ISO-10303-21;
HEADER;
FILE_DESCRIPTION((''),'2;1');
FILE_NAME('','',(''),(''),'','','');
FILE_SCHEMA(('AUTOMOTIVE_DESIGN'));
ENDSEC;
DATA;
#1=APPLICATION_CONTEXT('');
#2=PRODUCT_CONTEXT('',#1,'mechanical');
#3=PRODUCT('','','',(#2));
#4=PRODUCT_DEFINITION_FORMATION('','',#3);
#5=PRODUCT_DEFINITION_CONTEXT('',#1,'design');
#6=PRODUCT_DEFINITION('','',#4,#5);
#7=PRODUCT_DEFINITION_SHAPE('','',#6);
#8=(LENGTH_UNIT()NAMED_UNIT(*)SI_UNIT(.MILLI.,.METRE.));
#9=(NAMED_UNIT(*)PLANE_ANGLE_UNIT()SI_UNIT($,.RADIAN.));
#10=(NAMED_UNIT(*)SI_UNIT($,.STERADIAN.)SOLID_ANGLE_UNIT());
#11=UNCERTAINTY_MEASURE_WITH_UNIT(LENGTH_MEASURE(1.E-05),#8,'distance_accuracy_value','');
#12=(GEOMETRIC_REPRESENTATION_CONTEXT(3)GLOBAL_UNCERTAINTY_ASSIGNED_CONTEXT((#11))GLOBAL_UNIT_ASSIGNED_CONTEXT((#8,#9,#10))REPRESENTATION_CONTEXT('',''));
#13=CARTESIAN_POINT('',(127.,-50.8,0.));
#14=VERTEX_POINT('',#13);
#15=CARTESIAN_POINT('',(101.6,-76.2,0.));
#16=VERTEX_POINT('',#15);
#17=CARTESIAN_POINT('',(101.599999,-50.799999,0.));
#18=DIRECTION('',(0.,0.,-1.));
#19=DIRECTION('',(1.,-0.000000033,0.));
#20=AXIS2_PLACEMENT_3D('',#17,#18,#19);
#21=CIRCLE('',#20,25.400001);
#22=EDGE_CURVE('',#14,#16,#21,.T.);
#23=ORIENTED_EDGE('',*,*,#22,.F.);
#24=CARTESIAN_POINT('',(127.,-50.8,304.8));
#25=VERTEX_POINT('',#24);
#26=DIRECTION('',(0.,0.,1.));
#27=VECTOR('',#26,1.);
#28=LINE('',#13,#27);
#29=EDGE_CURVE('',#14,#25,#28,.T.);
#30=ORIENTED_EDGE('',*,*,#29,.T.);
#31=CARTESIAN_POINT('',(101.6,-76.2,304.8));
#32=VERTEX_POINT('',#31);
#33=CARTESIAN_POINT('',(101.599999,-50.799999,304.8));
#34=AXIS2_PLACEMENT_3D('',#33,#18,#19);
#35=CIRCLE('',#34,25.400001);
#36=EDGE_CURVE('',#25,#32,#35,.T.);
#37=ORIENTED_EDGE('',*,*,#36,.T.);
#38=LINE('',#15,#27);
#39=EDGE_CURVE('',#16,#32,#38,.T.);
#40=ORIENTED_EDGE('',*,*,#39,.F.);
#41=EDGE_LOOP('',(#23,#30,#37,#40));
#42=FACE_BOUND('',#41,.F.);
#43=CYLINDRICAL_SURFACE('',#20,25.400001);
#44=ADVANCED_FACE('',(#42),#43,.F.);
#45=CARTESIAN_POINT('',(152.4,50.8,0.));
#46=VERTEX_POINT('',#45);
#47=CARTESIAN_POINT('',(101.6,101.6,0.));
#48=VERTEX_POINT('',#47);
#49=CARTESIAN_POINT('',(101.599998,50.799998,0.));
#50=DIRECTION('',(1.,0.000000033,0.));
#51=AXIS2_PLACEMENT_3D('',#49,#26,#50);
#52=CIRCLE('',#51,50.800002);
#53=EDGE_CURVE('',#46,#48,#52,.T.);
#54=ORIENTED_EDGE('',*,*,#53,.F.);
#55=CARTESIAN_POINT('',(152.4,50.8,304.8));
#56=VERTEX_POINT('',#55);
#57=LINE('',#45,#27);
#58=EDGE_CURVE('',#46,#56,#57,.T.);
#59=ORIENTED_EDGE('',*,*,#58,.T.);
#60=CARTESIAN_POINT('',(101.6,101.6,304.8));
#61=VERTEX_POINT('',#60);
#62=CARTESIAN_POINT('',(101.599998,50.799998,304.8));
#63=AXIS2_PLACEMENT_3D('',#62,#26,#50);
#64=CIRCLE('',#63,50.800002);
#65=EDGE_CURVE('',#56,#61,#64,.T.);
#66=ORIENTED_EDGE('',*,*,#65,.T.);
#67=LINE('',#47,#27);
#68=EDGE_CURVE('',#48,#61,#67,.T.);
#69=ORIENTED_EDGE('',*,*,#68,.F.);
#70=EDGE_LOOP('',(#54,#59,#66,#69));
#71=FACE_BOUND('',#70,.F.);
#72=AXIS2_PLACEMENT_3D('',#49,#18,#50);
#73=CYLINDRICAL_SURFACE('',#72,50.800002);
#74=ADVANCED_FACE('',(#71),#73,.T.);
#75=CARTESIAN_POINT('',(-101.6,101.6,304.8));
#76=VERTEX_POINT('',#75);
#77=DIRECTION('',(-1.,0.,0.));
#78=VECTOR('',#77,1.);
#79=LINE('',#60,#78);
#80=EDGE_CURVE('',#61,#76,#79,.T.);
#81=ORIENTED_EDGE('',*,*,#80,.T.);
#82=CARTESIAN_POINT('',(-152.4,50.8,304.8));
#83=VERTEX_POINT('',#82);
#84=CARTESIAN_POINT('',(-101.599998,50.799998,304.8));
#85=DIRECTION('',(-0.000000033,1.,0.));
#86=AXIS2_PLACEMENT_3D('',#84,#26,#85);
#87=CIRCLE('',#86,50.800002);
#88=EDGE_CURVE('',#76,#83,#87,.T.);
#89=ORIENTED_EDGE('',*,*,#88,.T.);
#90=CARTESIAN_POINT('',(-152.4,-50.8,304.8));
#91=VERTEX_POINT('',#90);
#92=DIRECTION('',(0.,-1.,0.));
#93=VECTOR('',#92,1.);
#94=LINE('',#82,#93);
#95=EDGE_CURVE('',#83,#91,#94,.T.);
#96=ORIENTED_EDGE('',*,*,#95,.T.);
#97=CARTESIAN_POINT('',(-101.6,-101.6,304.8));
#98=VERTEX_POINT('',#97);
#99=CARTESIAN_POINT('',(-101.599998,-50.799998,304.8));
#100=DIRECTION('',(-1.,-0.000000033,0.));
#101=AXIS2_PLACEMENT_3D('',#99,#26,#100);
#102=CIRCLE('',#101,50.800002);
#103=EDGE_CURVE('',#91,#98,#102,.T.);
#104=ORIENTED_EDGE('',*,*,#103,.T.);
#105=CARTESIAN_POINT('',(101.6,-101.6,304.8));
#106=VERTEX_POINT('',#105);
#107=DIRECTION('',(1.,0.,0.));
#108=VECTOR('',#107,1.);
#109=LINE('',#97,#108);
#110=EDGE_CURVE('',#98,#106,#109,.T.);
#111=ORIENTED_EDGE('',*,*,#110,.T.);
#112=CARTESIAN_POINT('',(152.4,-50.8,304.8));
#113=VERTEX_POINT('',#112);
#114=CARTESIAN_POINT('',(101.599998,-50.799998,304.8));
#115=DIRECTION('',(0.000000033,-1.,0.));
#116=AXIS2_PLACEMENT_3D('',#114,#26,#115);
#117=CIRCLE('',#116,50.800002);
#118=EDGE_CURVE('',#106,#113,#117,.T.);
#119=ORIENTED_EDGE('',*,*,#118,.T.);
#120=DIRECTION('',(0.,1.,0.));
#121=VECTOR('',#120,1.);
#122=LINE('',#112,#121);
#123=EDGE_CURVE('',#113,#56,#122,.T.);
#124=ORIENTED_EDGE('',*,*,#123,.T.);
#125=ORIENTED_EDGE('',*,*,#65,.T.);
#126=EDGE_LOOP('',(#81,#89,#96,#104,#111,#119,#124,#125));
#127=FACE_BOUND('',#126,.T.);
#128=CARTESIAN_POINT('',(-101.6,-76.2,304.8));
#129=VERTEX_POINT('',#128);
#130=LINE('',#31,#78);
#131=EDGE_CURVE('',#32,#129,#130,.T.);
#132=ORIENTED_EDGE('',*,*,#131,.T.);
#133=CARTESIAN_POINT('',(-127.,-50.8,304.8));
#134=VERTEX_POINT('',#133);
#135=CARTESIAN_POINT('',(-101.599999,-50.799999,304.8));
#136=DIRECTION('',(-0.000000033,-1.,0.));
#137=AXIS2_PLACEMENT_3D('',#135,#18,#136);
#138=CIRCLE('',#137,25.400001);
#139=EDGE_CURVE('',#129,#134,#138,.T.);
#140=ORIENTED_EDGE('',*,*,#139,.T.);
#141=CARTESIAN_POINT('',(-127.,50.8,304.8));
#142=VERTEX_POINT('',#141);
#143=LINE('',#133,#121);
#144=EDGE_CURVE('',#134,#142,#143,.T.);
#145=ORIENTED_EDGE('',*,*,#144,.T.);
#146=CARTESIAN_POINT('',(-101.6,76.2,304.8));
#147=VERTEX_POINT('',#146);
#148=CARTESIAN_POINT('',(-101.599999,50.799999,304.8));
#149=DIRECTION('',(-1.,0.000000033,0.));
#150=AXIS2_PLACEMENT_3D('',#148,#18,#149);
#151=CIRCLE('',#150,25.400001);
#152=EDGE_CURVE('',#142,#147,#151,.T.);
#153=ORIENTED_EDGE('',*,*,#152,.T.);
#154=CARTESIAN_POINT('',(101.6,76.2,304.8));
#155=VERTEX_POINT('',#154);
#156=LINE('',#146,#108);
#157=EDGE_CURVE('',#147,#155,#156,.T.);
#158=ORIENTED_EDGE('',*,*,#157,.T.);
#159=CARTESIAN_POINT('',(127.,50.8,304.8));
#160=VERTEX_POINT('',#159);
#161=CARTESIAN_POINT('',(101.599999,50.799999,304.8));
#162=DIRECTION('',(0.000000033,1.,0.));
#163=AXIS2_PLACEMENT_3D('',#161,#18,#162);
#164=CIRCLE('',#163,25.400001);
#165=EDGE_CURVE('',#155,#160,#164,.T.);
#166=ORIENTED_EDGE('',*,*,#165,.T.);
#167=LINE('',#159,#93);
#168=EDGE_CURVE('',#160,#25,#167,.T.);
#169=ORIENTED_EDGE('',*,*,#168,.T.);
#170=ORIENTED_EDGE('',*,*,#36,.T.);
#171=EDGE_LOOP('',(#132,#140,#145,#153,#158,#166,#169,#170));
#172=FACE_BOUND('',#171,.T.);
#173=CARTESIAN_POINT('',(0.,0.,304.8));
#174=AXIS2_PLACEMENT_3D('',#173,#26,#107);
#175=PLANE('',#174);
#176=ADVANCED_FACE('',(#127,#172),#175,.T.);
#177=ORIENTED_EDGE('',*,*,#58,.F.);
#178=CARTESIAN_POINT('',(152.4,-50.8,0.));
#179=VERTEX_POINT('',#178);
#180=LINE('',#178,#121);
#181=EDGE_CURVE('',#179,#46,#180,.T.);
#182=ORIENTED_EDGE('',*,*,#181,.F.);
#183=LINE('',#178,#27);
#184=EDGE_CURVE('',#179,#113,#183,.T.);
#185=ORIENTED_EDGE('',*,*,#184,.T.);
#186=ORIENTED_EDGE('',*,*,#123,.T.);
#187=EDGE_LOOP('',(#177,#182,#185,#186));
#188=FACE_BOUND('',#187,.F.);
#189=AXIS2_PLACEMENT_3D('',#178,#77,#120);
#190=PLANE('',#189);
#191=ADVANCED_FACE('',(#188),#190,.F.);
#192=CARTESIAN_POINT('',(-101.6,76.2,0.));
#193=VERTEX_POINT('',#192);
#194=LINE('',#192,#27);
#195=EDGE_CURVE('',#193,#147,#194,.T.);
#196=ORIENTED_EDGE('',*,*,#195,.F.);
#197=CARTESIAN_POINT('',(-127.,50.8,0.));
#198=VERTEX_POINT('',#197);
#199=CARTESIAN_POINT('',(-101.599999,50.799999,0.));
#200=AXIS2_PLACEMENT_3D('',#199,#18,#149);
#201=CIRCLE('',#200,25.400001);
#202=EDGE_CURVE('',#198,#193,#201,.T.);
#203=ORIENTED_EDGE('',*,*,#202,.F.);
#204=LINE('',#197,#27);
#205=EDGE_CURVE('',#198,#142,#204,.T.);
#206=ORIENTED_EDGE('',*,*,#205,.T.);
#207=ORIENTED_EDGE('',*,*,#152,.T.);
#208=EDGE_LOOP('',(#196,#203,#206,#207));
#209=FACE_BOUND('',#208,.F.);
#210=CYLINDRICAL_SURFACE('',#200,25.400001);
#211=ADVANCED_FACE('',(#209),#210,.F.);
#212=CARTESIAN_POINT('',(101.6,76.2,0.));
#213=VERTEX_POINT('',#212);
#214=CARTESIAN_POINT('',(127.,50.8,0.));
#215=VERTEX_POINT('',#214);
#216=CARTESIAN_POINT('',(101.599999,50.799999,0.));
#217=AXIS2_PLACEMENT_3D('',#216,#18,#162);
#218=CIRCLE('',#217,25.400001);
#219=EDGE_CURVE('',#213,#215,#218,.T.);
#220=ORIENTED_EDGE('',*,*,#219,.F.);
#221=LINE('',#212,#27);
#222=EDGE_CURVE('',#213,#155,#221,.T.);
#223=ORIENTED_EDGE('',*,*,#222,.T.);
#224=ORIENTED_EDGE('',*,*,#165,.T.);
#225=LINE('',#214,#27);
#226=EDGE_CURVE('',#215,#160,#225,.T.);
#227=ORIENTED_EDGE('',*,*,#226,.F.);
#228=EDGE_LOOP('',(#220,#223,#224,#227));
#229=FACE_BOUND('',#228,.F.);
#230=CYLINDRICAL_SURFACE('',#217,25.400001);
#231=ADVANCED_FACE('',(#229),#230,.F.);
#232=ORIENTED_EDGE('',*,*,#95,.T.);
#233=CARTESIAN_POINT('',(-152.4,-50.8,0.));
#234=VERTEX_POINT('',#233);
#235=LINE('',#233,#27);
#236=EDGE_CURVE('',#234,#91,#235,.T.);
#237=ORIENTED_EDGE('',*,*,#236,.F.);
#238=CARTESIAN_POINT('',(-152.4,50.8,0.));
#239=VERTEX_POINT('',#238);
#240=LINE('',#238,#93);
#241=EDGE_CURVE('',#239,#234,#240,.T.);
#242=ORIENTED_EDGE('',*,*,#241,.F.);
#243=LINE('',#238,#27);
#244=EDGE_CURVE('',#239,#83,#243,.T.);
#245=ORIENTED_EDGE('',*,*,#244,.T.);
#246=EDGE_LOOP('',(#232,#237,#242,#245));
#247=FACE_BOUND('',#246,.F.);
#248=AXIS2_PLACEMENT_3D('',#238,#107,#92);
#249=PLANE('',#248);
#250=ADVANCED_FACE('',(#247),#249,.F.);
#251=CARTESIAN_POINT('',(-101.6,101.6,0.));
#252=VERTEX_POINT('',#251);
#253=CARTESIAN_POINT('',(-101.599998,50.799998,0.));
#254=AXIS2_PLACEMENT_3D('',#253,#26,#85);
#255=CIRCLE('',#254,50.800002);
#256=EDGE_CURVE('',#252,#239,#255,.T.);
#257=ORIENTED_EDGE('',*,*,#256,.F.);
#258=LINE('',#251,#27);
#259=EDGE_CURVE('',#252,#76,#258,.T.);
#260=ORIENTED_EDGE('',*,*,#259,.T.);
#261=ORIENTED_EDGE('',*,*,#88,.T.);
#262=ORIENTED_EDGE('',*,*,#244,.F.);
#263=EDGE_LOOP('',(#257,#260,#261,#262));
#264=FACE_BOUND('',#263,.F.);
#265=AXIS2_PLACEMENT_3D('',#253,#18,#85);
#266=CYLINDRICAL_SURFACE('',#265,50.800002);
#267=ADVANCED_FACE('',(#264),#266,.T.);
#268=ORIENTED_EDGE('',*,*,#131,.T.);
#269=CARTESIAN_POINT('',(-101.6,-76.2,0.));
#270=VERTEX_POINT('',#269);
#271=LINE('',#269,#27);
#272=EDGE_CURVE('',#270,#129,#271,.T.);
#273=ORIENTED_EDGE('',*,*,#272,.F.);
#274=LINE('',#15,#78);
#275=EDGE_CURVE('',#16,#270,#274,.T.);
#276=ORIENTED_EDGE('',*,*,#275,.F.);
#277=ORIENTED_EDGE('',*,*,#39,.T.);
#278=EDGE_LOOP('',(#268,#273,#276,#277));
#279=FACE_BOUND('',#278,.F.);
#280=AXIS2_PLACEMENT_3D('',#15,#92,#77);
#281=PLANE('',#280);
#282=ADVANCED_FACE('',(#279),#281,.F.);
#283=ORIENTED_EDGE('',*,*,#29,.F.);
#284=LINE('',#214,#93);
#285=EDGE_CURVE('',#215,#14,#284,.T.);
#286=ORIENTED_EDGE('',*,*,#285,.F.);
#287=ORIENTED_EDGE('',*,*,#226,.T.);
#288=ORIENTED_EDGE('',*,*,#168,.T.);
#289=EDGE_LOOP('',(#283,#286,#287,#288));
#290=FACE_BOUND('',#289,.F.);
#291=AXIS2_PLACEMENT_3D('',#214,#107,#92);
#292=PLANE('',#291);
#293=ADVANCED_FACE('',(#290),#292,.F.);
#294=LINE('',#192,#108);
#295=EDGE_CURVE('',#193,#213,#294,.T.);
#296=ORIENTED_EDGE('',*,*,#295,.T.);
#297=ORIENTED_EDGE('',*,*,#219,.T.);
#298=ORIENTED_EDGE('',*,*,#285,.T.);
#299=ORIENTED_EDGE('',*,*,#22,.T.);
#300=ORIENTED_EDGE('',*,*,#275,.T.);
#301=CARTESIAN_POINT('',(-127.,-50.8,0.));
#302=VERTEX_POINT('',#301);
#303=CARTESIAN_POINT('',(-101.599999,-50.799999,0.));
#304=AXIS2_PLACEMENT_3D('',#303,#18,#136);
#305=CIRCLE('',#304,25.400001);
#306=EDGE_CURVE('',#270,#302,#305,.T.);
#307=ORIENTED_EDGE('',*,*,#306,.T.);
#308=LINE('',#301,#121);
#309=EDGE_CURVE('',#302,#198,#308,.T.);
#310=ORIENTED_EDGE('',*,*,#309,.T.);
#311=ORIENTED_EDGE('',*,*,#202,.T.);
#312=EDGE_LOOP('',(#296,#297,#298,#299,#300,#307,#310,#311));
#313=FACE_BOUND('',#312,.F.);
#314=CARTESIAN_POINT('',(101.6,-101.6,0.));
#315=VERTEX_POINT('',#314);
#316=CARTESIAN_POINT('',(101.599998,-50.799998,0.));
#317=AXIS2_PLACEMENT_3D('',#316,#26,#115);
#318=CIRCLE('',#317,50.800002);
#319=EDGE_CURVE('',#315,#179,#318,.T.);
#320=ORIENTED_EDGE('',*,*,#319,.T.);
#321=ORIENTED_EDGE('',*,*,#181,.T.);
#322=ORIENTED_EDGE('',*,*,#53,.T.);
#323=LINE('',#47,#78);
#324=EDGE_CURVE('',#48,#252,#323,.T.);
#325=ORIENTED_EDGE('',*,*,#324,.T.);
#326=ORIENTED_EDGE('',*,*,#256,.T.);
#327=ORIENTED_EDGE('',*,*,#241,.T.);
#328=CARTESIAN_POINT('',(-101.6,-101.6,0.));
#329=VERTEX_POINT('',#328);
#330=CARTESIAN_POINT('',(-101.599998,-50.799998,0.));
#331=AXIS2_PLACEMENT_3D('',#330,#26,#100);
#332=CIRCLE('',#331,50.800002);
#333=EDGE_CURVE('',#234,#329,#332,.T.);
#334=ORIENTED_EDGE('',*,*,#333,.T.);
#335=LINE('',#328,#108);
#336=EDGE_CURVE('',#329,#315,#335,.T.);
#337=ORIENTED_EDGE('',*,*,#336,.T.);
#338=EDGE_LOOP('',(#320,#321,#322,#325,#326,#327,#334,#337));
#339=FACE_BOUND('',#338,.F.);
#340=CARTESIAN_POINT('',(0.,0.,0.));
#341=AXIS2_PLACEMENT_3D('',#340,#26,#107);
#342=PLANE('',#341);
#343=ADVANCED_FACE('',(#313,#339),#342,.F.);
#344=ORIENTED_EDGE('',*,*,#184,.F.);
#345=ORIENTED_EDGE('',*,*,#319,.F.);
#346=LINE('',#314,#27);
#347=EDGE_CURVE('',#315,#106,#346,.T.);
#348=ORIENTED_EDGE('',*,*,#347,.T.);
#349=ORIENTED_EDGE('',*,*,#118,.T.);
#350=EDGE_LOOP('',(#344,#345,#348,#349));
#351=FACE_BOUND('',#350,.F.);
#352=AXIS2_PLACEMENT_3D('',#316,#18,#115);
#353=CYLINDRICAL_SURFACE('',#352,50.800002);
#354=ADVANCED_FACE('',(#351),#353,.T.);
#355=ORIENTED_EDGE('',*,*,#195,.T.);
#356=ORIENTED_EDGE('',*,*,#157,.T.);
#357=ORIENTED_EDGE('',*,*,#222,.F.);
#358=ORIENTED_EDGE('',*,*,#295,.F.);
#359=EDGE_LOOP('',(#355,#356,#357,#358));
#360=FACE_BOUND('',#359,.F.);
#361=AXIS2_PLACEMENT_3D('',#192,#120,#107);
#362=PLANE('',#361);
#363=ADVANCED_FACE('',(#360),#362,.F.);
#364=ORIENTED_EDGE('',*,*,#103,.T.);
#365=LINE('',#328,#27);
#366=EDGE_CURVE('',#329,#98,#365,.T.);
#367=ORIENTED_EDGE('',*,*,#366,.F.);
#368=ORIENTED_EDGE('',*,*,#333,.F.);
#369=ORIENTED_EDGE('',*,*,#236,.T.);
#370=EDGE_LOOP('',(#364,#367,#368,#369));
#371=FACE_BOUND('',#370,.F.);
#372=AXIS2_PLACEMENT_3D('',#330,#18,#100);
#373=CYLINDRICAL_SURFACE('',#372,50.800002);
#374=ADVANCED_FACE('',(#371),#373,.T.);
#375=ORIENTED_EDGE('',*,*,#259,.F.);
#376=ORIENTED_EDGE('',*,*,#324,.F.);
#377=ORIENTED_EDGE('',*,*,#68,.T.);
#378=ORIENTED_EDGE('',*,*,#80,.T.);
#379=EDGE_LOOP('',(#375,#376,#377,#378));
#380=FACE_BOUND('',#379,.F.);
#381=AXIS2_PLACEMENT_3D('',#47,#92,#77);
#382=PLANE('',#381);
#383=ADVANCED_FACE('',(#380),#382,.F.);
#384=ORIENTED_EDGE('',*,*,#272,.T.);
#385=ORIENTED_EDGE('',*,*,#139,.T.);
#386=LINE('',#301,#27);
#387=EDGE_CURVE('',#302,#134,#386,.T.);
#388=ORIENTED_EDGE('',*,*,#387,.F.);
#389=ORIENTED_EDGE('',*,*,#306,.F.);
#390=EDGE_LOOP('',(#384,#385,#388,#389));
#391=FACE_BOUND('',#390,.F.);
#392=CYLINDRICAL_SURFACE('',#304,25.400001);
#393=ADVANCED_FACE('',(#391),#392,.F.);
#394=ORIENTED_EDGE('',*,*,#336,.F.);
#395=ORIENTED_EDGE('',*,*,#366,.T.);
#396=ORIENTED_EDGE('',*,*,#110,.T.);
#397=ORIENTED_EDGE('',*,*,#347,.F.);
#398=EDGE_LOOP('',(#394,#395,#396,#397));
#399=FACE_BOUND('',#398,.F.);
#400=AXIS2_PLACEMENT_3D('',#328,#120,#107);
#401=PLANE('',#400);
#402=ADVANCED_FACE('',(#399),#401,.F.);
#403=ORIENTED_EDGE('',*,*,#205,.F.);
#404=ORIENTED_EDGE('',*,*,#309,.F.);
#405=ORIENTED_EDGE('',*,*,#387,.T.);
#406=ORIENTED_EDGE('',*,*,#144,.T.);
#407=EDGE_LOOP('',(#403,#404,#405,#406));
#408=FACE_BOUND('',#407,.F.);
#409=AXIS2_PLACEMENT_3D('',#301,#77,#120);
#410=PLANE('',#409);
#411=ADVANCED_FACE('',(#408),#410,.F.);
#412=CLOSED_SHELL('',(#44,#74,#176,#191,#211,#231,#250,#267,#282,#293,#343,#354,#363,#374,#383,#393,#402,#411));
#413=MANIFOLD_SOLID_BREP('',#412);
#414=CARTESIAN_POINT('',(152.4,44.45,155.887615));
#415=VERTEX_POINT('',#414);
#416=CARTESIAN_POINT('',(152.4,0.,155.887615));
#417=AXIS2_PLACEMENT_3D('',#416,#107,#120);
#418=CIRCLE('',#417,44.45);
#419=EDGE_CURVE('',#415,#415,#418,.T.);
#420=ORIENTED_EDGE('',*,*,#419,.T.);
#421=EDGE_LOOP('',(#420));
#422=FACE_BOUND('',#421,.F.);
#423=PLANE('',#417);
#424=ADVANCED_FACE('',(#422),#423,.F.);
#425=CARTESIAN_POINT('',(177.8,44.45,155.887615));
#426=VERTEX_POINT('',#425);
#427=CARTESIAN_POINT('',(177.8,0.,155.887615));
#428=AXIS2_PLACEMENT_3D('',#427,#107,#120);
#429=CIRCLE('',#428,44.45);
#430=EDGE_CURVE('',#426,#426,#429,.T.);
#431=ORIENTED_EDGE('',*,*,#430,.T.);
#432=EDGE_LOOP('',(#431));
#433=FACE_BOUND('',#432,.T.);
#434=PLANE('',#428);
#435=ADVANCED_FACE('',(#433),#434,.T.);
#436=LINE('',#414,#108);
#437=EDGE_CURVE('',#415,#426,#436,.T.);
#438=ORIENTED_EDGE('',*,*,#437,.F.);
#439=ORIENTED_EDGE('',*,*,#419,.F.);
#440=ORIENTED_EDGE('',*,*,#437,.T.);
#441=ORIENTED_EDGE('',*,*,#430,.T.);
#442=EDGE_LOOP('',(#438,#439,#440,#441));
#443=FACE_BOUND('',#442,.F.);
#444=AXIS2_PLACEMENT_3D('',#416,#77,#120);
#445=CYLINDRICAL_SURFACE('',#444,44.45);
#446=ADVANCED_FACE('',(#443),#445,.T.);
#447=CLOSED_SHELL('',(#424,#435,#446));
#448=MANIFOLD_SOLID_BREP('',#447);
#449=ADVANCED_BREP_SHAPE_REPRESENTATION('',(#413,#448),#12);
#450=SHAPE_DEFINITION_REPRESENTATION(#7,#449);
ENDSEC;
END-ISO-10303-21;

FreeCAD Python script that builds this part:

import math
import FreeCAD as App
import Part
import Sketcher
Q = App.Units.Quantity

doc = App.newDocument("Part")
params = doc.addObject("Spreadsheet::Sheet", "Params")
for row, (alias, value) in enumerate([
    ("sketch1_radius", "2.0000001 in"),
    ("sketch1_radius2", "1 in"),
    ("sketch1_width", "8 in"),
    ("sketch1_height", "4 in"),
    ("pad1_length", "12 in"),
    ("sketch2_diameter", "3.5 in"),
    ("pad2_length", "1 in"),
], start=1):
    params.set(f"A{row}", alias)
    params.set(f"B{row}", "=" + value)
    params.setAlias(f"B{row}", alias)

body = doc.addObject("PartDesign::Body", "Body")

# Sketch on XY plane
sketch1 = body.newObject("Sketcher::SketchObject", "Sketch")
sketch1.AttachmentSupport = (doc.getObject("XY_Plane"), [""])
sketch1.MapMode = "FlatFace"
sketch1.addGeometry([
    Part.LineSegment(App.Vector(152.4, -50.8, 0), App.Vector(152.4, 50.8, 0)),  # 0
    Part.ArcOfCircle(Part.Circle(App.Vector(101.599998, 50.799998, 0), App.Vector(0, 0, 1), 50.800002), math.radians(0.000002), math.radians(89.999998)),  # 1
    Part.LineSegment(App.Vector(101.6, 101.6, 0), App.Vector(-101.6, 101.6, 0)),  # 2
    Part.ArcOfCircle(Part.Circle(App.Vector(-101.599998, 50.799998, 0), App.Vector(0, 0, 1), 50.800002), math.radians(90.000002), math.radians(179.999998)),  # 3
    Part.LineSegment(App.Vector(-152.4, 50.8, 0), App.Vector(-152.4, -50.8, 0)),  # 4
    Part.ArcOfCircle(Part.Circle(App.Vector(-101.599998, -50.799998, 0), App.Vector(0, 0, 1), 50.800002), math.radians(-179.999998), math.radians(-90.000002)),  # 5
    Part.LineSegment(App.Vector(-101.6, -101.6, 0), App.Vector(101.6, -101.6, 0)),  # 6
    Part.ArcOfCircle(Part.Circle(App.Vector(101.599998, -50.799998, 0), App.Vector(0, 0, 1), 50.800002), math.radians(-89.999998), math.radians(-0.000002)),  # 7
    Part.ArcOfCircle(Part.Circle(App.Vector(-101.599999, 50.799999, 0), App.Vector(0, 0, 1), 25.400001), math.radians(90.000002), math.radians(179.999998)),  # 8
    Part.LineSegment(App.Vector(-101.6, 76.2, 0), App.Vector(101.6, 76.2, 0)),  # 9
    Part.ArcOfCircle(Part.Circle(App.Vector(101.599999, 50.799999, 0), App.Vector(0, 0, 1), 25.400001), math.radians(0.000002), math.radians(89.999998)),  # 10
    Part.LineSegment(App.Vector(127, 50.8, 0), App.Vector(127, -50.8, 0)),  # 11
    Part.ArcOfCircle(Part.Circle(App.Vector(101.599999, -50.799999, 0), App.Vector(0, 0, 1), 25.400001), math.radians(-89.999998), math.radians(-0.000002)),  # 12
    Part.LineSegment(App.Vector(101.6, -76.2, 0), App.Vector(-101.6, -76.2, 0)),  # 13
    Part.ArcOfCircle(Part.Circle(App.Vector(-101.599999, -50.799999, 0), App.Vector(0, 0, 1), 25.400001), math.radians(-179.999998), math.radians(-90.000002)),  # 14
    Part.LineSegment(App.Vector(-127, -50.8, 0), App.Vector(-127, 50.8, 0)),  # 15
], False)
sketch1.addConstraint([
    Sketcher.Constraint("Tangent", 0, 2, 1, 1),
    Sketcher.Constraint("Tangent", 1, 2, 2, 1),
    Sketcher.Constraint("Tangent", 2, 2, 3, 1),
    Sketcher.Constraint("Tangent", 3, 2, 4, 1),
    Sketcher.Constraint("Tangent", 4, 2, 5, 1),
    Sketcher.Constraint("Tangent", 5, 2, 6, 1),
    Sketcher.Constraint("Tangent", 6, 2, 7, 1),
    Sketcher.Constraint("Tangent", 7, 2, 0, 1),
    Sketcher.Constraint("Tangent", 8, 1, 9, 1),
    Sketcher.Constraint("Tangent", 9, 2, 10, 2),
    Sketcher.Constraint("Tangent", 10, 1, 11, 1),
    Sketcher.Constraint("Tangent", 11, 2, 12, 2),
    Sketcher.Constraint("Tangent", 12, 1, 13, 1),
    Sketcher.Constraint("Tangent", 13, 2, 14, 2),
    Sketcher.Constraint("Tangent", 14, 1, 15, 1),
    Sketcher.Constraint("Tangent", 15, 2, 8, 2),
    Sketcher.Constraint("Vertical", 0),
    Sketcher.Constraint("Horizontal", 2),
    Sketcher.Constraint("Vertical", 4),
    Sketcher.Constraint("Horizontal", 6),
    Sketcher.Constraint("Horizontal", 9),
    Sketcher.Constraint("Vertical", 11),
    Sketcher.Constraint("Horizontal", 13),
    Sketcher.Constraint("Vertical", 15),
    Sketcher.Constraint("Coincident", 8, 3, 3, 3),
    Sketcher.Constraint("Coincident", 10, 3, 1, 3),
    Sketcher.Constraint("Coincident", 12, 3, 7, 3),
    Sketcher.Constraint("Equal", 1, 3),
    Sketcher.Constraint("Equal", 3, 5),
    Sketcher.Constraint("Equal", 5, 7),
    Sketcher.Constraint("Equal", 12, 14),
    Sketcher.Constraint("Symmetric", 1, 3, 5, 3, -1, 1),
    Sketcher.Constraint("Radius", 1, Q("2.0000001 in")),
    Sketcher.Constraint("Radius", 8, Q("1 in")),
    Sketcher.Constraint("DistanceX", 2, 2, 2, 1, Q("8 in")),
    Sketcher.Constraint("DistanceY", 0, 1, 0, 2, Q("4 in")),
])
sketch1.setExpression("Constraints[32]", "Params.sketch1_radius")
sketch1.setExpression("Constraints[33]", "Params.sketch1_radius2")
sketch1.setExpression("Constraints[34]", "Params.sketch1_width")
sketch1.setExpression("Constraints[35]", "Params.sketch1_height")
pad1 = body.newObject("PartDesign::Pad", "Pad")
pad1.Profile = sketch1
pad1.setExpression("Length", "Params.pad1_length")
body2 = doc.addObject("PartDesign::Body", "Body001")

# Sketch on YZ plane
sketch2 = body2.newObject("Sketcher::SketchObject", "Sketch001")
sketch2.AttachmentSupport = (doc.getObject("YZ_Plane001"), [""])
sketch2.MapMode = "FlatFace"
sketch2.AttachmentOffset = App.Placement(App.Vector(0, 0, 6 * 25.4), App.Rotation())
sketch2.addGeometry(Part.Circle(App.Vector(0, 155.887615, 0), App.Vector(0, 0, 1), 44.45), False)
sketch2.addConstraint([
    Sketcher.Constraint("PointOnObject", 0, 3, -2),
    Sketcher.Constraint("Diameter", 0, Q("3.5 in")),
    Sketcher.Constraint("DistanceY", -1, 1, 0, 3, 155.887615),
])
sketch2.setExpression("Constraints[1]", "Params.sketch2_diameter")
pad2 = body2.newObject("PartDesign::Pad", "Pad001")
pad2.Profile = sketch2
pad2.setExpression("Length", "Params.pad2_length")

doc.recompute()
